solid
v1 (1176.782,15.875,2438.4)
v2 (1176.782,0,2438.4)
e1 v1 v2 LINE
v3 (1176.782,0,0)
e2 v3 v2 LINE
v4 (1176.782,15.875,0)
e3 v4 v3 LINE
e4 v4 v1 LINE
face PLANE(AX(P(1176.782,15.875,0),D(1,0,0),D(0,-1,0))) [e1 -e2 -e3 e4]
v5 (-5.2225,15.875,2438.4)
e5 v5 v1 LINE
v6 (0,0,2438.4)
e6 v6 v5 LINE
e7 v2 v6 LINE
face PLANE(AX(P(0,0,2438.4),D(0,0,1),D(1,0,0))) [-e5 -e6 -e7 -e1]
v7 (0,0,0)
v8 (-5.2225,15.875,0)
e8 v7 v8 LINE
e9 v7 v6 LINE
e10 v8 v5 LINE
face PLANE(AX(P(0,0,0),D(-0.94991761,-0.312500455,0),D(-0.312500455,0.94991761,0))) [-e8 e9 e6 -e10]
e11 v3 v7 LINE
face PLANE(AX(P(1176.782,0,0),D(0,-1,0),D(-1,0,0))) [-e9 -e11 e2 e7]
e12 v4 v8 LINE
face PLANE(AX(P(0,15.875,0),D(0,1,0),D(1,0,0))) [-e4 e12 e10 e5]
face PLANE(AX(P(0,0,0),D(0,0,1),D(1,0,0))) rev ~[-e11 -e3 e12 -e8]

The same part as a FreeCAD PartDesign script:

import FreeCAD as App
import Part
import Sketcher
from FreeCAD import Vector
Q = App.Units.Quantity


def add_polygon(sketch, points):
    """Adds a closed chain of lines whose ends are joined by coincident constraints."""
    first, n = sketch.GeometryCount, len(points)
    for a, b in zip(points, points[1:] + points[:1]):
        sketch.addGeometry(Part.LineSegment(App.Vector(*a, 0), App.Vector(*b, 0)), False)
    for i in range(n):
        sketch.addConstraint(Sketcher.Constraint("Coincident", first + i, 2, first + (i + 1) % n, 1))

doc = App.newDocument("Part")
body = doc.addObject("PartDesign::Body", "Body")

# Sketch on XY plane
sketch1 = body.newObject("Sketcher::SketchObject", "Sketch")
sketch1.AttachmentSupport = (doc.getObject("XY_Plane"), [""])
sketch1.MapMode = "FlatFace"
add_polygon(sketch1, [(1176.782, 15.875), (-5.2225, 15.875), (0, 0), (1176.782, 0)])  # lines 0-3
sketch1.addConstraint(Sketcher.Constraint("Horizontal", 0))
sketch1.addConstraint(Sketcher.Constraint("Horizontal", 2))
sketch1.addConstraint(Sketcher.Constraint("Vertical", 3))
sketch1.addConstraint(Sketcher.Constraint("Coincident", 1, 2, -1, 1))
sketch1.addConstraint(Sketcher.Constraint("DistanceX", 2, 1, 2, 2, Q("46.33 in")))
sketch1.addConstraint(Sketcher.Constraint("DistanceY", 3, 1, 3, 2, Q("0.625 in")))
sketch1.addConstraint(Sketcher.Constraint("Angle", 1, Q("-71.79 deg")))
pad1 = body.newObject("PartDesign::Pad", "Pad")
pad1.Profile = sketch1
pad1.Length = Q("96 in")

doc.recompute()
